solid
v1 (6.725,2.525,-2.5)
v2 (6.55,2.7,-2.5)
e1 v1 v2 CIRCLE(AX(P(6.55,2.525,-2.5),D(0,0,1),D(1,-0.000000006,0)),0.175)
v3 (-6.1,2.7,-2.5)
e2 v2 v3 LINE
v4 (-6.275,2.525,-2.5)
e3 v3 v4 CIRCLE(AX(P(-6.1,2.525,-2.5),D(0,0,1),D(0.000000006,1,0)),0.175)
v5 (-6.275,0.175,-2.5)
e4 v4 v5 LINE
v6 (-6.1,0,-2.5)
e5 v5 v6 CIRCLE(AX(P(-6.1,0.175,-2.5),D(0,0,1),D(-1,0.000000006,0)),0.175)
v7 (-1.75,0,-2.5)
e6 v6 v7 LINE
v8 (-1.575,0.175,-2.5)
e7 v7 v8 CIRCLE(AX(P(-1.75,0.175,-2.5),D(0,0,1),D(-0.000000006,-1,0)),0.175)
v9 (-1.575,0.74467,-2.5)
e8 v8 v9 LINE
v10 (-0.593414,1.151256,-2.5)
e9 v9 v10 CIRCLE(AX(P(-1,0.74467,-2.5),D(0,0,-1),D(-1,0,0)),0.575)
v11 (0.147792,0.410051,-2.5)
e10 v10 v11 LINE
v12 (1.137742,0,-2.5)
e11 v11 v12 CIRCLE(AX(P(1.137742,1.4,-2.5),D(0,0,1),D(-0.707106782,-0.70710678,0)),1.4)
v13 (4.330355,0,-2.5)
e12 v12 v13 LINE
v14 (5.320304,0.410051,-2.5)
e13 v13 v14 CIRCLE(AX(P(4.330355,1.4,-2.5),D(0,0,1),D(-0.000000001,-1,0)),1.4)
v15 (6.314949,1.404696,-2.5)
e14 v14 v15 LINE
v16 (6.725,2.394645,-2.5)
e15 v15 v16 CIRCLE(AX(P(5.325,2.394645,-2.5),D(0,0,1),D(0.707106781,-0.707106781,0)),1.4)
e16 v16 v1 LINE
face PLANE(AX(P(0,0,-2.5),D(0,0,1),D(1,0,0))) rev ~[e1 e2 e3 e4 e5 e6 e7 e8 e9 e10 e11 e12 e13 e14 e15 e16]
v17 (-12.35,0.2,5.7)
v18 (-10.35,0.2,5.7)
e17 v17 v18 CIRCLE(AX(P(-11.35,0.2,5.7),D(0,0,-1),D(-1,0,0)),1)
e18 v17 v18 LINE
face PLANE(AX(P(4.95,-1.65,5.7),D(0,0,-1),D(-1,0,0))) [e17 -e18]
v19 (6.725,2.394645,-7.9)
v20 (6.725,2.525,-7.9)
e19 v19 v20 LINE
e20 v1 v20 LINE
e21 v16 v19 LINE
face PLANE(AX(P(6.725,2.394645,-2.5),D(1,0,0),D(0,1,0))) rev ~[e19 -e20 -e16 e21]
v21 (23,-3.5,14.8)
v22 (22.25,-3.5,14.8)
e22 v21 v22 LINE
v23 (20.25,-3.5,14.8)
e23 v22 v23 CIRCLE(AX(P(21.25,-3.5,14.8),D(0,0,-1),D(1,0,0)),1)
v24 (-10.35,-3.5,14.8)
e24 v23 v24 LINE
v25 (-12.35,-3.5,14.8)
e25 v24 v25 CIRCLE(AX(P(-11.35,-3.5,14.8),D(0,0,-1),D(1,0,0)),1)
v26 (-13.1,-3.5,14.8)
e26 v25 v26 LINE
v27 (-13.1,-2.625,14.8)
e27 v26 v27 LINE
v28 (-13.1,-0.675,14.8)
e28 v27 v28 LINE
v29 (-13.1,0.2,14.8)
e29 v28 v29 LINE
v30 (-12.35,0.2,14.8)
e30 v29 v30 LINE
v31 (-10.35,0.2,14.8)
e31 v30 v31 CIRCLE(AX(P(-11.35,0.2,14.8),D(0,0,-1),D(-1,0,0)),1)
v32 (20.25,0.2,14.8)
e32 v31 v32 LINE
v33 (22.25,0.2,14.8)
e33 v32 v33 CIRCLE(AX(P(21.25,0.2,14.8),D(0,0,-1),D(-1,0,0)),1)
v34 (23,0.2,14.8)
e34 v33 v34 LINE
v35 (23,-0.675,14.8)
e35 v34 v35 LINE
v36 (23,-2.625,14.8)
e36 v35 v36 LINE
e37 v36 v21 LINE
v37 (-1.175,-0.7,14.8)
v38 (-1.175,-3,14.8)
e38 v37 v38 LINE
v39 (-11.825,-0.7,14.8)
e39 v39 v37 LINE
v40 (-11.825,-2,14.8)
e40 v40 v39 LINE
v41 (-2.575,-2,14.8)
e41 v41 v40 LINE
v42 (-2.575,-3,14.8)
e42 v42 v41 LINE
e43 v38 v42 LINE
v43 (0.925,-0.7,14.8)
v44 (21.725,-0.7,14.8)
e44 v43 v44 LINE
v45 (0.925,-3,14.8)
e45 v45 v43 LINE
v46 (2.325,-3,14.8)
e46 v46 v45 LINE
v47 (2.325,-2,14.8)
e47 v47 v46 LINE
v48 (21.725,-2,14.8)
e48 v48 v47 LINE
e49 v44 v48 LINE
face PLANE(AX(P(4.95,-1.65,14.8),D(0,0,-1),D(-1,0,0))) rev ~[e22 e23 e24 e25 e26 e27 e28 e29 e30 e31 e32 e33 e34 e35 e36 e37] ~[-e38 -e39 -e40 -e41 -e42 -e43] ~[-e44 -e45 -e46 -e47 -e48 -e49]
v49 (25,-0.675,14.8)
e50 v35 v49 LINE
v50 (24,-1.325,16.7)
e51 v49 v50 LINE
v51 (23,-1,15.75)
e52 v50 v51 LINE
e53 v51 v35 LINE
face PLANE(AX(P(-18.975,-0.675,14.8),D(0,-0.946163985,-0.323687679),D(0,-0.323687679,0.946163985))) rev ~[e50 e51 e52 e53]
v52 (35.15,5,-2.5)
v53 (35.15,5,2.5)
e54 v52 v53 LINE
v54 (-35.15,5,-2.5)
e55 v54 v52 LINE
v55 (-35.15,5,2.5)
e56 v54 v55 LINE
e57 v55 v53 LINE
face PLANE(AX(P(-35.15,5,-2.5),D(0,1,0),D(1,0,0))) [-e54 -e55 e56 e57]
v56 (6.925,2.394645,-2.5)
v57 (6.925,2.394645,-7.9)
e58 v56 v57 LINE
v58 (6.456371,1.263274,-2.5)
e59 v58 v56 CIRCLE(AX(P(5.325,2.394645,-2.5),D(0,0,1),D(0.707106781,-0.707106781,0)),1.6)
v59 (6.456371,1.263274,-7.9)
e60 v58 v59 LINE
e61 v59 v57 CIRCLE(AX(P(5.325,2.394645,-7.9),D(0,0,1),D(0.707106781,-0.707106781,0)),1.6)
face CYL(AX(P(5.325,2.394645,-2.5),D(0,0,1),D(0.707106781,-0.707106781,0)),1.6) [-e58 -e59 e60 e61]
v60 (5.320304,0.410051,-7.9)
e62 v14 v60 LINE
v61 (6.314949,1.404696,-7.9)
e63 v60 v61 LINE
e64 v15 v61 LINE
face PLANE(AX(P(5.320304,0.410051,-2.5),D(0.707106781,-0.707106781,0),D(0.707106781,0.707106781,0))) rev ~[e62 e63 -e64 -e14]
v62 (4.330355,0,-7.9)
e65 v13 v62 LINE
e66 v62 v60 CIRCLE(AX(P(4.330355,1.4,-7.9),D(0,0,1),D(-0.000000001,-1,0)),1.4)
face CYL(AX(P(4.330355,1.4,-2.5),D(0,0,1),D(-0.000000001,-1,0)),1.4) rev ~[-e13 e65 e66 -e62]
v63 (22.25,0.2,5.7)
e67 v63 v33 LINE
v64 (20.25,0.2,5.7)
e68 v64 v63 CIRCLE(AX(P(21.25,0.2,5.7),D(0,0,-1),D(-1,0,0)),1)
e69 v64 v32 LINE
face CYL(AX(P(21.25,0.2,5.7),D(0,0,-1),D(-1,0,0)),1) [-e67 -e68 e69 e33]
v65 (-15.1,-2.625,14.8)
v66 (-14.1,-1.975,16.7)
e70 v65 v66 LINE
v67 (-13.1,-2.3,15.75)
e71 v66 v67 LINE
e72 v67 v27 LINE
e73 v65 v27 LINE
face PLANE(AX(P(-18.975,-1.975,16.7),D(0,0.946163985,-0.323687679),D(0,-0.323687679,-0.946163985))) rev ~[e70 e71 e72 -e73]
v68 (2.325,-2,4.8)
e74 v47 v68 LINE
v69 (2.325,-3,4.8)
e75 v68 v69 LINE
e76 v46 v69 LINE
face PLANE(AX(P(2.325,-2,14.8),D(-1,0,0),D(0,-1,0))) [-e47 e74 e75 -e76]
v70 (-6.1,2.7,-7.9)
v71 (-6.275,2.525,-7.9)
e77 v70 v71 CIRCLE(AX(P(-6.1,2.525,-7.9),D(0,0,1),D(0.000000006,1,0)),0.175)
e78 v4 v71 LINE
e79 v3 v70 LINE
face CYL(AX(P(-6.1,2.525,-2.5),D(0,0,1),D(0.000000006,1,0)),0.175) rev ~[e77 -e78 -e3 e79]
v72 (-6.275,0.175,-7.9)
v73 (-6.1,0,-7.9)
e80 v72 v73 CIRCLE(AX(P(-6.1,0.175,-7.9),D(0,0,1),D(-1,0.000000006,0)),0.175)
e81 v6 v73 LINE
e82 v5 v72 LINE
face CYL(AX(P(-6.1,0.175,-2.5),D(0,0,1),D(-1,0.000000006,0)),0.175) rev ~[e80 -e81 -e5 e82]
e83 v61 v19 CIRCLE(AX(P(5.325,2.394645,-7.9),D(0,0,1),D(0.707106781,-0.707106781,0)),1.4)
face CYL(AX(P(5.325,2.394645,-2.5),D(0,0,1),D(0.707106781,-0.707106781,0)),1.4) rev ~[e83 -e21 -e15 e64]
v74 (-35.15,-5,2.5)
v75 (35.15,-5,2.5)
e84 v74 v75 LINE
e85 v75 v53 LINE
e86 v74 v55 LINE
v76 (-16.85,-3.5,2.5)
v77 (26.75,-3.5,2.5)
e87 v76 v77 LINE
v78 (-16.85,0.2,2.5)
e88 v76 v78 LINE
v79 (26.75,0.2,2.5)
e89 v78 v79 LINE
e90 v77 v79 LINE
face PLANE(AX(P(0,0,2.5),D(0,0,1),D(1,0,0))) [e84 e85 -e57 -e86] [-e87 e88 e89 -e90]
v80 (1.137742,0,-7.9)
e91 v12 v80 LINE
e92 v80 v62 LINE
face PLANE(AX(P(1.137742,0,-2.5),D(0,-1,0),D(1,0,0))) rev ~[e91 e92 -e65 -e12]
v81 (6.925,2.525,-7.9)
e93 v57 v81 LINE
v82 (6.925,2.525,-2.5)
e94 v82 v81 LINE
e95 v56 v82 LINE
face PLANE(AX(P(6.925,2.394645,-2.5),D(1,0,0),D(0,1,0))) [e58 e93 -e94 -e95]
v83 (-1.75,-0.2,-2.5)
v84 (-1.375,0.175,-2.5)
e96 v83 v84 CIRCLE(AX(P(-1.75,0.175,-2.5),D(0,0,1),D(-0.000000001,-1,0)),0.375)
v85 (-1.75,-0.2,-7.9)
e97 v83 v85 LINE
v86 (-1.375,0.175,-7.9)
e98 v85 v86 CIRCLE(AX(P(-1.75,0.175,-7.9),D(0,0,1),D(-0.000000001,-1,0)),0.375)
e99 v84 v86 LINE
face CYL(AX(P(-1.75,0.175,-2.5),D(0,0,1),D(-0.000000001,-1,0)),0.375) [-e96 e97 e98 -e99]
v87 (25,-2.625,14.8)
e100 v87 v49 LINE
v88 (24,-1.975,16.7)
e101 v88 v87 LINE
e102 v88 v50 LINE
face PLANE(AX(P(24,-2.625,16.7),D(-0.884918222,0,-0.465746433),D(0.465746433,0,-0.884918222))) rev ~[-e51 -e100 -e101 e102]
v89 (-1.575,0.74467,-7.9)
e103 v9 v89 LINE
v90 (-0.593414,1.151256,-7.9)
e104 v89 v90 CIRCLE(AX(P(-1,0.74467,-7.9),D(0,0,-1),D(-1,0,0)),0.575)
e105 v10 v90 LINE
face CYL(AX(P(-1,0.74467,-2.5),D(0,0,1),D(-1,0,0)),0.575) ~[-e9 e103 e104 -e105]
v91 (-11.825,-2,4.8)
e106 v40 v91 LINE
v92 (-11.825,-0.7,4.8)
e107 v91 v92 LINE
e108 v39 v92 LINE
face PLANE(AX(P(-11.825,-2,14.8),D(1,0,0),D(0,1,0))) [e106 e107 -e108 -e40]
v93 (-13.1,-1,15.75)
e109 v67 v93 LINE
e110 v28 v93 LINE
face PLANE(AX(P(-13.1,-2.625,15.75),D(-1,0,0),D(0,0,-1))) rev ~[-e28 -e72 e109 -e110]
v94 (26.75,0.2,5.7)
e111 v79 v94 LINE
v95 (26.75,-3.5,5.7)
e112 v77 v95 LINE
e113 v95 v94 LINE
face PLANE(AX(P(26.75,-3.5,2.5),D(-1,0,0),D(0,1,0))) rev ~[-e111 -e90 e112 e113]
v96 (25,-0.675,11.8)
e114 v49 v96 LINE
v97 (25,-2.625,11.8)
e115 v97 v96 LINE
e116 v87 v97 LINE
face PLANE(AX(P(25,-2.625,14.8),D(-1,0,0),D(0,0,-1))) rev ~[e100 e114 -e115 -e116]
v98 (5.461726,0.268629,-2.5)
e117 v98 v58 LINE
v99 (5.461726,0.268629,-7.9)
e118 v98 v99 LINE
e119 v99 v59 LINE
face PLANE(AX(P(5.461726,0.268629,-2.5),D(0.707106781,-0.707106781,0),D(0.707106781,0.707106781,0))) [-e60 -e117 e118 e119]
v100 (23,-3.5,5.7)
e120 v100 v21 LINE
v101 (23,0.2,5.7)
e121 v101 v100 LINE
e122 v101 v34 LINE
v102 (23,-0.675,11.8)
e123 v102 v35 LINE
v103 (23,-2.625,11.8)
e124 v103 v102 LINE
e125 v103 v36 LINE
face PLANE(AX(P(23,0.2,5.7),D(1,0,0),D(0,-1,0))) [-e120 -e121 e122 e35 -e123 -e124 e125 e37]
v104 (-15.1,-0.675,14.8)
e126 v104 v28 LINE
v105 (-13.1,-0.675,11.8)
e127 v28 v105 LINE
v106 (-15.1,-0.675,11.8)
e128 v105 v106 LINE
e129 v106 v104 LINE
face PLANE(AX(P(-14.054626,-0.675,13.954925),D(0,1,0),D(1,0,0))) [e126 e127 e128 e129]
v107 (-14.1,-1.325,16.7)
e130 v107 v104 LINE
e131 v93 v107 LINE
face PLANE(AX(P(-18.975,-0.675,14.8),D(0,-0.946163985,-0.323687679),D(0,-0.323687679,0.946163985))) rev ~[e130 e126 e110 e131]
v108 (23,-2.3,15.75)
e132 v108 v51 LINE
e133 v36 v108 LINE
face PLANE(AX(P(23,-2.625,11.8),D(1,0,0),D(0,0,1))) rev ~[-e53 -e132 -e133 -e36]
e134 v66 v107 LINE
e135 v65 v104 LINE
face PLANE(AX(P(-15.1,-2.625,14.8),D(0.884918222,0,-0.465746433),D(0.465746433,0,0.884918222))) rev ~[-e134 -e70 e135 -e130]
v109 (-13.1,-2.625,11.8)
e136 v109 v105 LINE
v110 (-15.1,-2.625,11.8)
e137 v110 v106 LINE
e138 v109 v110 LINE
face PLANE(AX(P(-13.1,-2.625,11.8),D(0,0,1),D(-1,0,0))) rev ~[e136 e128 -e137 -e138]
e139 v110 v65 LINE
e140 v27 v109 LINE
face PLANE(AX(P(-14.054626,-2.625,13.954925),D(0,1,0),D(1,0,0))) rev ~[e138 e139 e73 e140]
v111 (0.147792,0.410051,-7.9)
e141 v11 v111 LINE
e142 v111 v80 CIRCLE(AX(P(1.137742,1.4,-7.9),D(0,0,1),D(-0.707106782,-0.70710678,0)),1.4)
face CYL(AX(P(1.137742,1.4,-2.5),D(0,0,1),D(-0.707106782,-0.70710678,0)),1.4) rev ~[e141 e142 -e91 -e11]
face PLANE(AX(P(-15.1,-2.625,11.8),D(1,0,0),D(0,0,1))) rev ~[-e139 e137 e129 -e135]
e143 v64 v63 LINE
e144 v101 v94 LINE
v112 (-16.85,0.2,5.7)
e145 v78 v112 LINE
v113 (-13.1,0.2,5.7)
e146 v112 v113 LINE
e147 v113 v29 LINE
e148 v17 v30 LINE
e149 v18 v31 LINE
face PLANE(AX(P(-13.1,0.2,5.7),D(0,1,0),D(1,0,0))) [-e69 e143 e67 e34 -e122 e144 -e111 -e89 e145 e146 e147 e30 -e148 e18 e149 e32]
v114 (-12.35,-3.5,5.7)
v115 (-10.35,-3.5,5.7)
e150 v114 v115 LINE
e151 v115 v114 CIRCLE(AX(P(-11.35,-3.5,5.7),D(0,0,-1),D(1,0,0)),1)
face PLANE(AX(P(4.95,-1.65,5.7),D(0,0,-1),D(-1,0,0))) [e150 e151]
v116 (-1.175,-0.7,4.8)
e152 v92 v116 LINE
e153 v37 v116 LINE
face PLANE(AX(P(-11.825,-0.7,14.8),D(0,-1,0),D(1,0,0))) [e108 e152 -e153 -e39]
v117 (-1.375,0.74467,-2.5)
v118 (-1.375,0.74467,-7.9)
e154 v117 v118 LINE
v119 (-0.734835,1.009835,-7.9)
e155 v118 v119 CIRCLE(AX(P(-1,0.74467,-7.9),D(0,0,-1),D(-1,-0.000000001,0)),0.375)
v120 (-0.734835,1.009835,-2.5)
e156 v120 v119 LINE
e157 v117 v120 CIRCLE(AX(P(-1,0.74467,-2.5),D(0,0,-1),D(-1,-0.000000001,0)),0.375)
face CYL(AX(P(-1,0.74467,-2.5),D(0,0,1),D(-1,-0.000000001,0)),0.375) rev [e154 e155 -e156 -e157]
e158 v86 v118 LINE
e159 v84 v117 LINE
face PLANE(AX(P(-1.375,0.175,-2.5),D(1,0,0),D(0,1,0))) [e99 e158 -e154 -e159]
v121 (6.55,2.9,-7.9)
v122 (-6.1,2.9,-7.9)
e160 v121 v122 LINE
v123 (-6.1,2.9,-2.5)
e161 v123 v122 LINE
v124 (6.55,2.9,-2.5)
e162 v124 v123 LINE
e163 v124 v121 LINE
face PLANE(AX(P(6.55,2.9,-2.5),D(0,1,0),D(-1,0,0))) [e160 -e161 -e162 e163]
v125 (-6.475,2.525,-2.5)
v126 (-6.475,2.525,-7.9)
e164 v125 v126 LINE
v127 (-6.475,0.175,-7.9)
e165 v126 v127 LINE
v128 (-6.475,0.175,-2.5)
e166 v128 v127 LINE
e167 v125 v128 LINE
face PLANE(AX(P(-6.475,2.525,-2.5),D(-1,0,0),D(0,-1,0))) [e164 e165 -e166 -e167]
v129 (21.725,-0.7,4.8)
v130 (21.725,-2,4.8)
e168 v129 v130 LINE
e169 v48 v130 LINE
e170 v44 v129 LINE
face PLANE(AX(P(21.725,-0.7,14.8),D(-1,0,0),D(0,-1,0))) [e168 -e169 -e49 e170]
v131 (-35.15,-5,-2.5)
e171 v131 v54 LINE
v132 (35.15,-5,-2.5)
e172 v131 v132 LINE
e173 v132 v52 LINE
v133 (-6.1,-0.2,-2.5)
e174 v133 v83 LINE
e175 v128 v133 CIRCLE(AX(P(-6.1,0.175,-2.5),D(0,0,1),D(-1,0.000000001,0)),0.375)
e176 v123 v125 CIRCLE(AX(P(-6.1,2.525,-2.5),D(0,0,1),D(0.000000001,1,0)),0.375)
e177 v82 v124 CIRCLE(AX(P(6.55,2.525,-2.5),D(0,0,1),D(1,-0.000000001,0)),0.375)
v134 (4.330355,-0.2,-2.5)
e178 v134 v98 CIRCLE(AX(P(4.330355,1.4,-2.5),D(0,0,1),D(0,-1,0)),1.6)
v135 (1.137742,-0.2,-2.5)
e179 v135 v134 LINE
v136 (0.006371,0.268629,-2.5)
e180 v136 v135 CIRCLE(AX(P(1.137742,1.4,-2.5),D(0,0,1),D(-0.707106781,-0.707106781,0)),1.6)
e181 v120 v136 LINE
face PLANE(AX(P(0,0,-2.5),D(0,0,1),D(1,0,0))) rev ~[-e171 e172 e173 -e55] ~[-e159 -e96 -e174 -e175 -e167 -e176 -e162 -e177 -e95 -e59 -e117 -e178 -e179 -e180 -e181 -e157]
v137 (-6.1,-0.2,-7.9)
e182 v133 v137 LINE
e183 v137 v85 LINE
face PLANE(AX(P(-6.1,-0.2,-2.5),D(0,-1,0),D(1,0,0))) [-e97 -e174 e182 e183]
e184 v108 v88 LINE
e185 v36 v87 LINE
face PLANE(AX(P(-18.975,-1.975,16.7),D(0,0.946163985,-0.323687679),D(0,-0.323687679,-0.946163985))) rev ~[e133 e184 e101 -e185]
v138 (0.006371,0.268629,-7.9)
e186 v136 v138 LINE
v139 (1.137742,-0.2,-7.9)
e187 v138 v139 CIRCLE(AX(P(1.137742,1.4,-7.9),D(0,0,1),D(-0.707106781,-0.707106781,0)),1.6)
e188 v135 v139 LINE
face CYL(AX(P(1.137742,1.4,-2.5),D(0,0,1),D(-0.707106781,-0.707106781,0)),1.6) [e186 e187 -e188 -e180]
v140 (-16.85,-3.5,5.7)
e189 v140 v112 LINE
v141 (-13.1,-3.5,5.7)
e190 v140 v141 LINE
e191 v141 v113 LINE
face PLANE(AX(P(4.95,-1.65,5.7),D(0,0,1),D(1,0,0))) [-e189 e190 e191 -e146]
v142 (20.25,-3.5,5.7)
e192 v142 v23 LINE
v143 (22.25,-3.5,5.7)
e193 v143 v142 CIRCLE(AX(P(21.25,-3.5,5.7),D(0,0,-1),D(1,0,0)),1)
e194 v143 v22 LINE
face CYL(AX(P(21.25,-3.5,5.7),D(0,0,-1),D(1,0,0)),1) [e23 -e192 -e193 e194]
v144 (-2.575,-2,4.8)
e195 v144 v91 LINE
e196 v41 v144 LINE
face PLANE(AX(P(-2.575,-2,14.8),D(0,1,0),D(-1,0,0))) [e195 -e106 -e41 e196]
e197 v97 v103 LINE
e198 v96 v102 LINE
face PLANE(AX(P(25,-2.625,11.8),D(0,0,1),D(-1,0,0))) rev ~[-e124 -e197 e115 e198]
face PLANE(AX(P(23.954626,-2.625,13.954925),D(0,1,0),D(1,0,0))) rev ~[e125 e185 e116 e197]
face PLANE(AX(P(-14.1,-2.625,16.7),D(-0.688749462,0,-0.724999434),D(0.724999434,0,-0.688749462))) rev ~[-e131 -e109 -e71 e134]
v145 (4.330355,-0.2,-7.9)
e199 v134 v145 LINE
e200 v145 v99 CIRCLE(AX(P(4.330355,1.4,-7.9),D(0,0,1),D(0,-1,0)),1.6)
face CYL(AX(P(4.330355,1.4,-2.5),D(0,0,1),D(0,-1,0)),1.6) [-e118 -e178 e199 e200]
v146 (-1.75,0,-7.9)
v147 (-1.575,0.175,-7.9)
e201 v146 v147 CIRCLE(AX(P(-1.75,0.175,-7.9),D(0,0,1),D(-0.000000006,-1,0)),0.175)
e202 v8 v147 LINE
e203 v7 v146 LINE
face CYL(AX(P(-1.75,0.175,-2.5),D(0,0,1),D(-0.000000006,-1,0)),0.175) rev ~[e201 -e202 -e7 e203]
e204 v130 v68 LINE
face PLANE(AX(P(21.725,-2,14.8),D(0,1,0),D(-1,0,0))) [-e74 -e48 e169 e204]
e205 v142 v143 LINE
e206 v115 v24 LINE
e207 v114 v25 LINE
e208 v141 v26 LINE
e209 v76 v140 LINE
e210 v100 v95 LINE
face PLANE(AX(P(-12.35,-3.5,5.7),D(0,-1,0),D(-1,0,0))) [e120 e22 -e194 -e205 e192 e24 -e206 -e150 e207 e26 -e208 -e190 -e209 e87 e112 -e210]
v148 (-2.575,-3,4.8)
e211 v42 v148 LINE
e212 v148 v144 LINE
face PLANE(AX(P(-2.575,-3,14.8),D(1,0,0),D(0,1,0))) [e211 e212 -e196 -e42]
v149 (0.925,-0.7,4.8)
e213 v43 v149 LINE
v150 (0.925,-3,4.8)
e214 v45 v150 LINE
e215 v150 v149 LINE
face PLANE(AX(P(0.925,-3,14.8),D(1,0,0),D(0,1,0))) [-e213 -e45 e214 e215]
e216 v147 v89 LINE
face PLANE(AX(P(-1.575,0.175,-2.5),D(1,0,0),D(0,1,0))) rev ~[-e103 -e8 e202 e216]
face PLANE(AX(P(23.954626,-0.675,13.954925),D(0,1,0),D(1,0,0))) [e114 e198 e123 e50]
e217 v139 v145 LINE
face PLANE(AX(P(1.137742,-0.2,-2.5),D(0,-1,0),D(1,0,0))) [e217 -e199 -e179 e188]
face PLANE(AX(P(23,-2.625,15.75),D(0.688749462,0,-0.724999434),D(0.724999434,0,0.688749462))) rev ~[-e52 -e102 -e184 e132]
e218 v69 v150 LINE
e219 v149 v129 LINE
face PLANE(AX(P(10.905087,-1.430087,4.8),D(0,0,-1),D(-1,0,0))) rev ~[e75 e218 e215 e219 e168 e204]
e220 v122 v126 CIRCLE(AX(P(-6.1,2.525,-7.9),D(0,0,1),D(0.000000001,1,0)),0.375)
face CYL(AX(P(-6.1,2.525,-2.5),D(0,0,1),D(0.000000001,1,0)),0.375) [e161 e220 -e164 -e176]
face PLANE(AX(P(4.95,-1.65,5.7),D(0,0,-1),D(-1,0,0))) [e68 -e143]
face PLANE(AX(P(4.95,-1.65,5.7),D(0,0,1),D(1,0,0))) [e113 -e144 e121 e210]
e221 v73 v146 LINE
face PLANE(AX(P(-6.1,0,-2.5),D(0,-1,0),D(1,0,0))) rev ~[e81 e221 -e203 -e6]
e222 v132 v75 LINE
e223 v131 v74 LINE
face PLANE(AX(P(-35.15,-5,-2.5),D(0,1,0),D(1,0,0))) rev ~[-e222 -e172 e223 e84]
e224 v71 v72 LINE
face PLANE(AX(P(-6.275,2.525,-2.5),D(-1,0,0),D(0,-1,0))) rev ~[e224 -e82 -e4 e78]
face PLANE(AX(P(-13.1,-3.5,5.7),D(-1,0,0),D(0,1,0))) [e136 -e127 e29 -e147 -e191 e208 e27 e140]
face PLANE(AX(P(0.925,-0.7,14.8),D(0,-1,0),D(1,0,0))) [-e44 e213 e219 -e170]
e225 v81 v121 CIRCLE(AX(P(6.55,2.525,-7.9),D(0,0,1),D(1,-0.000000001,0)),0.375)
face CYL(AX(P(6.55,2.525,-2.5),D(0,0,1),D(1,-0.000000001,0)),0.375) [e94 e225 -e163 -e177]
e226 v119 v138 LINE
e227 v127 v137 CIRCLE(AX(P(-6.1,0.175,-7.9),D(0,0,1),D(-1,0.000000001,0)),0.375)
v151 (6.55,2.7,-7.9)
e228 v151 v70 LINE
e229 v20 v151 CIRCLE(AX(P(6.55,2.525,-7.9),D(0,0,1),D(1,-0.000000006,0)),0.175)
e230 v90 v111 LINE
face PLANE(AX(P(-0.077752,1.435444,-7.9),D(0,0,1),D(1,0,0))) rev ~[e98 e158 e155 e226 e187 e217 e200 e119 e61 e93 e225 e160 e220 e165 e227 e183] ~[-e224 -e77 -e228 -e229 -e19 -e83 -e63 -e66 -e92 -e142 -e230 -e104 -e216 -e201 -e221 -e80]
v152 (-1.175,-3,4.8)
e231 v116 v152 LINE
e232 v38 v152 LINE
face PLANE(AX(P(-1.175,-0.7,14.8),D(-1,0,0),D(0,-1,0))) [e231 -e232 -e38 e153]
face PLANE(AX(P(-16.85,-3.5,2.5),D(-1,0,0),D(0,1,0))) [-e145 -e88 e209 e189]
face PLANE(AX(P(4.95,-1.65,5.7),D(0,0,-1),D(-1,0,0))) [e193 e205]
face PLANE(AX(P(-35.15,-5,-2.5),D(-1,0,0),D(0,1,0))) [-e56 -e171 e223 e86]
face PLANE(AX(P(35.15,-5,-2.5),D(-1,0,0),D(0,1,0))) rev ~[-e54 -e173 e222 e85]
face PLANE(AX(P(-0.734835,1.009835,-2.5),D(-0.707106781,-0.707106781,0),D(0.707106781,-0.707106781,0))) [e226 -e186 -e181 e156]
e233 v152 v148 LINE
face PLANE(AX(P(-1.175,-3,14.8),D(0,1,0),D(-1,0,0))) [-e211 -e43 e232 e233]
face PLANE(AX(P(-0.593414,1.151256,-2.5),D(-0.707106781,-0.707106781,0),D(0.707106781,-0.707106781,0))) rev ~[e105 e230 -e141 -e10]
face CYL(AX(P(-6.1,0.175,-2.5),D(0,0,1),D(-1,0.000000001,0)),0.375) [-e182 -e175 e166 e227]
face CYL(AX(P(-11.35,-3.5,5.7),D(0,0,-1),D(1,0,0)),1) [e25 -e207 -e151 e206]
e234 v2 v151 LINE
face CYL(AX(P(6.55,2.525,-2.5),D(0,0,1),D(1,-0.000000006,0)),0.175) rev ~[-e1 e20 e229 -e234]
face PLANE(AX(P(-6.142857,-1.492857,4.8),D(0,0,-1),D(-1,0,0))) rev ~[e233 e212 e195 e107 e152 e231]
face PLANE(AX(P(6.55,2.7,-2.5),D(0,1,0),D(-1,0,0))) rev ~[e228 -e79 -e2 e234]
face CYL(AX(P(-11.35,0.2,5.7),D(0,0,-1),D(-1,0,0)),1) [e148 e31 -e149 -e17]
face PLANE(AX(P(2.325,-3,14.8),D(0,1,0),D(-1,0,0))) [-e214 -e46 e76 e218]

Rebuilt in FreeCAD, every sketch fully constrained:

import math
import FreeCAD as App
import Part
import Sketcher

V = App.Vector

doc = App.newDocument("Part")
body = doc.addObject("PartDesign::Body", "Body")

sketch1 = body.newObject("Sketcher::SketchObject", "Sketch")
sketch1.AttachmentSupport = (doc.getObject("XY_Plane"), [""])
sketch1.MapMode = "FlatFace"
sketch1.addGeometry(Part.LineSegment(V(-35, 5, 0), V(-35, -5, 0)), False)
sketch1.addGeometry(Part.LineSegment(V(-35, -5, 0), V(35, -5, 0)), False)
sketch1.addGeometry(Part.LineSegment(V(35, -5, 0), V(35, 5, 0)), False)
sketch1.addGeometry(Part.LineSegment(V(35, 5, 0), V(-35, 5, 0)), False)
sketch1.addConstraint(Sketcher.Constraint("Coincident", 0, 2, 1, 1))
sketch1.addConstraint(Sketcher.Constraint("Coincident", 1, 2, 2, 1))
sketch1.addConstraint(Sketcher.Constraint("Coincident", 2, 2, 3, 1))
sketch1.addConstraint(Sketcher.Constraint("Coincident", 3, 2, 0, 1))
sketch1.addConstraint(Sketcher.Constraint("Vertical", 0))
sketch1.addConstraint(Sketcher.Constraint("Horizontal", 1))
sketch1.addConstraint(Sketcher.Constraint("Vertical", 2))
sketch1.addConstraint(Sketcher.Constraint("Horizontal", 3))
sketch1.addConstraint(Sketcher.Constraint("Symmetric", 0, 2, 2, 2, -1, 1))
sketch1.addConstraint(Sketcher.Constraint("DistanceY", 0, 2, 0, 1, 10.0))
sketch1.addConstraint(Sketcher.Constraint("DistanceX", 1, 1, 1, 2, 70.3))
pad1 = body.newObject("PartDesign::Pad", "Pad")
pad1.Profile = sketch1
pad1.Type = "TwoLengths"
pad1.Length = 2.5
pad1.Length2 = 2.5

sketch2 = body.newObject("Sketcher::SketchObject", "Sketch001")
sketch2.AttachmentSupport = (doc.getObject("XY_Plane"), [""])
sketch2.MapMode = "FlatFace"
sketch2.AttachmentOffset = App.Placement(V(0, 0, 2.5), App.Rotation())
sketch2.addGeometry(Part.LineSegment(V(-16.9, 0.2, 0), V(-16.9, -3.5, 0)), False)
sketch2.addGeometry(Part.LineSegment(V(-16.9, -3.5, 0), V(26.8, -3.5, 0)), False)
sketch2.addGeometry(Part.LineSegment(V(26.8, -3.5, 0), V(26.8, 0.2, 0)), False)
sketch2.addGeometry(Part.LineSegment(V(26.8, 0.2, 0), V(-16.9, 0.2, 0)), False)
sketch2.addConstraint(Sketcher.Constraint("Coincident", 0, 2, 1, 1))
sketch2.addConstraint(Sketcher.Constraint("Coincident", 1, 2, 2, 1))
sketch2.addConstraint(Sketcher.Constraint("Coincident", 2, 2, 3, 1))
sketch2.addConstraint(Sketcher.Constraint("Coincident", 3, 2, 0, 1))
sketch2.addConstraint(Sketcher.Constraint("Vertical", 0))
sketch2.addConstraint(Sketcher.Constraint("Horizontal", 1))
sketch2.addConstraint(Sketcher.Constraint("Vertical", 2))
sketch2.addConstraint(Sketcher.Constraint("Horizontal", 3))
sketch2.addConstraint(Sketcher.Constraint("DistanceX", 1, 1, 1, 2, 43.6))
sketch2.addConstraint(Sketcher.Constraint("DistanceY", 0, 2, 0, 1, 3.7))
sketch2.addConstraint(Sketcher.Constraint("DistanceY", 0, 2, -1, 1, 3.5))
sketch2.addConstraint(Sketcher.Constraint("DistanceX", 0, 2, -1, 1, 16.85))
pad2 = body.newObject("PartDesign::Pad", "Pad001")
pad2.Profile = sketch2
pad2.Length = 3.2

sketch3 = body.newObject("Sketcher::SketchObject", "Sketch002")
sketch3.AttachmentSupport = (doc.getObject("XY_Plane"), [""])
sketch3.MapMode = "FlatFace"
sketch3.AttachmentOffset = App.Placement(V(0, 0, 5.7), App.Rotation())
sketch3.addGeometry(Part.LineSegment(V(-12.3, 0.2, 0), V(-13.1, 0.2, 0)), False)
sketch3.addGeometry(Part.LineSegment(V(-13.1, 0.2, 0), V(-13.1, -3.5, 0)), False)
sketch3.addGeometry(Part.LineSegment(V(-13.1, -3.5, 0), V(-12.3, -3.5, 0)), False)
sketch3.addGeometry(Part.ArcOfCircle(Part.Circle(V(-11.3, -3.5, 0), V(0, 0, 1), 1), math.radians(180), math.radians(360)), False)
sketch3.addGeometry(Part.LineSegment(V(-10.3, -3.5, 0), V(20.2, -3.5, 0)), False)
sketch3.addGeometry(Part.ArcOfCircle(Part.Circle(V(21.2, -3.5, 0), V(0, 0, 1), 1), math.radians(180), math.radians(360)), False)
sketch3.addGeometry(Part.LineSegment(V(22.2, -3.5, 0), V(23, -3.5, 0)), False)
sketch3.addGeometry(Part.LineSegment(V(23, -3.5, 0), V(23, 0.2, 0)), False)
sketch3.addGeometry(Part.LineSegment(V(23, 0.2, 0), V(22.2, 0.2, 0)), False)
sketch3.addGeometry(Part.ArcOfCircle(Part.Circle(V(21.2, 0.2, 0), V(0, 0, 1), 1), math.radians(0), math.radians(180)), False)
sketch3.addGeometry(Part.LineSegment(V(20.2, 0.2, 0), V(-10.3, 0.2, 0)), False)
sketch3.addGeometry(Part.ArcOfCircle(Part.Circle(V(-11.3, 0.2, 0), V(0, 0, 1), 1), math.radians(0), math.radians(180)), False)
sketch3.addConstraint(Sketcher.Constraint("Coincident", 0, 2, 1, 1))
sketch3.addConstraint(Sketcher.Constraint("Coincident", 1, 2, 2, 1))
sketch3.addConstraint(Sketcher.Constraint("Coincident", 2, 2, 3, 1))
sketch3.addConstraint(Sketcher.Constraint("Coincident", 3, 2, 4, 1))
sketch3.addConstraint(Sketcher.Constraint("Coincident", 4, 2, 5, 1))
sketch3.addConstraint(Sketcher.Constraint("Coincident", 5, 2, 6, 1))
sketch3.addConstraint(Sketcher.Constraint("Coincident", 6, 2, 7, 1))
sketch3.addConstraint(Sketcher.Constraint("Coincident", 7, 2, 8, 1))
sketch3.addConstraint(Sketcher.Constraint("Coincident", 8, 2, 9, 1))
sketch3.addConstraint(Sketcher.Constraint("Coincident", 9, 2, 10, 1))
sketch3.addConstraint(Sketcher.Constraint("Coincident", 10, 2, 11, 1))
sketch3.addConstraint(Sketcher.Constraint("Coincident", 11, 2, 0, 1))
sketch3.addConstraint(Sketcher.Constraint("Horizontal", 0))
sketch3.addConstraint(Sketcher.Constraint("Vertical", 1))
sketch3.addConstraint(Sketcher.Constraint("Horizontal", 2))
sketch3.addConstraint(Sketcher.Constraint("Horizontal", 4))
sketch3.addConstraint(Sketcher.Constraint("Horizontal", 6))
sketch3.addConstraint(Sketcher.Constraint("Vertical", 7))
sketch3.addConstraint(Sketcher.Constraint("Horizontal", 8))
sketch3.addConstraint(Sketcher.Constraint("Horizontal", 10))
sketch3.addConstraint(Sketcher.Constraint("Equal", 3, 5))
sketch3.addConstraint(Sketcher.Constraint("Equal", 5, 9))
sketch3.addConstraint(Sketcher.Constraint("Equal", 9, 11))
sketch3.addConstraint(Sketcher.Constraint("Horizontal", 3, 3, 5, 3))
sketch3.addConstraint(Sketcher.Constraint("Horizontal", 9, 3, 11, 3))
sketch3.addConstraint(Sketcher.Constraint("Horizontal", 11, 3, 0, 2))
sketch3.addConstraint(Sketcher.Constraint("Horizontal", 5, 3, 1, 2))
sketch3.addConstraint(Sketcher.Constraint("Horizontal", 2, 2, 3, 2))
sketch3.addConstraint(Sketcher.Constraint("Horizontal", 4, 2, 5, 2))
sketch3.addConstraint(Sketcher.Constraint("Horizontal", 0, 2, 7, 2))
sketch3.addConstraint(Sketcher.Constraint("Horizontal", 8, 2, 9, 2))
sketch3.addConstraint(Sketcher.Constraint("Vertical", 5, 3, 9, 3))
sketch3.addConstraint(Sketcher.Constraint("Vertical", 3, 3, 11, 3))
sketch3.addConstraint(Sketcher.Constraint("Equal", 2, 6))
sketch3.addConstraint(Sketcher.Constraint("Radius", 3, 1.0))
sketch3.addConstraint(Sketcher.Constraint("DistanceX", 4, 1, 4, 2, 30.6))
sketch3.addConstraint(Sketcher.Constraint("DistanceY", 1, 2, 1, 1, 3.7))
sketch3.addConstraint(Sketcher.Constraint("DistanceX", -1, 1, 6, 2, 23.0))
sketch3.addConstraint(Sketcher.Constraint("DistanceX", 0, 2, 0, 1, 0.75))
sketch3.addConstraint(Sketcher.Constraint("DistanceY", 3, 3, -1, 1, 3.5))
pad3 = body.newObject("PartDesign::Pad", "Pad002")
pad3.Profile = sketch3
pad3.Length = 9.1

sketch4 = body.newObject("Sketcher::SketchObject", "Sketch003")
sketch4.AttachmentSupport = (doc.getObject("XY_Plane"), [""])
sketch4.MapMode = "FlatFace"
sketch4.AttachmentOffset = App.Placement(V(0, 0, 14.8), App.Rotation())
sketch4.addGeometry(Part.LineSegment(V(-1.2, -0.7, 0), V(-11.8, -0.7, 0)), False)
sketch4.addGeometry(Part.LineSegment(V(-11.8, -0.7, 0), V(-11.8, -2, 0)), False)
sketch4.addGeometry(Part.LineSegment(V(-11.8, -2, 0), V(-2.6, -2, 0)), False)
sketch4.addGeometry(Part.LineSegment(V(-2.6, -2, 0), V(-2.6, -3, 0)), False)
sketch4.addGeometry(Part.LineSegment(V(-2.6, -3, 0), V(-1.2, -3, 0)), False)
sketch4.addGeometry(Part.LineSegment(V(-1.2, -3, 0), V(-1.2, -0.7, 0)), False)
sketch4.addGeometry(Part.LineSegment(V(21.7, -0.7, 0), V(0.9, -0.7, 0)), False)
sketch4.addGeometry(Part.LineSegment(V(0.9, -0.7, 0), V(0.9, -3, 0)), False)
sketch4.addGeometry(Part.LineSegment(V(0.9, -3, 0), V(2.3, -3, 0)), False)
sketch4.addGeometry(Part.LineSegment(V(2.3, -3, 0), V(2.3, -2, 0)), False)
sketch4.addGeometry(Part.LineSegment(V(2.3, -2, 0), V(21.7, -2, 0)), False)
sketch4.addGeometry(Part.LineSegment(V(21.7, -2, 0), V(21.7, -0.7, 0)), False)
sketch4.addConstraint(Sketcher.Constraint("Coincident", 0, 2, 1, 1))
sketch4.addConstraint(Sketcher.Constraint("Coincident", 1, 2, 2, 1))
sketch4.addConstraint(Sketcher.Constraint("Coincident", 2, 2, 3, 1))
sketch4.addConstraint(Sketcher.Constraint("Coincident", 3, 2, 4, 1))
sketch4.addConstraint(Sketcher.Constraint("Coincident", 4, 2, 5, 1))
sketch4.addConstraint(Sketcher.Constraint("Coincident", 5, 2, 0, 1))
sketch4.addConstraint(Sketcher.Constraint("Coincident", 6, 2, 7, 1))
sketch4.addConstraint(Sketcher.Constraint("Coincident", 7, 2, 8, 1))
sketch4.addConstraint(Sketcher.Constraint("Coincident", 8, 2, 9, 1))
sketch4.addConstraint(Sketcher.Constraint("Coincident", 9, 2, 10, 1))
sketch4.addConstraint(Sketcher.Constraint("Coincident", 10, 2, 11, 1))
sketch4.addConstraint(Sketcher.Constraint("Coincident", 11, 2, 6, 1))
sketch4.addConstraint(Sketcher.Constraint("Horizontal", 0))
sketch4.addConstraint(Sketcher.Constraint("Vertical", 1))
sketch4.addConstraint(Sketcher.Constraint("Horizontal", 2))
sketch4.addConstraint(Sketcher.Constraint("Vertical", 3))
sketch4.addConstraint(Sketcher.Constraint("Horizontal", 4))
sketch4.addConstraint(Sketcher.Constraint("Vertical", 5))
sketch4.addConstraint(Sketcher.Constraint("Horizontal", 6))
sketch4.addConstraint(Sketcher.Constraint("Vertical", 7))
sketch4.addConstraint(Sketcher.Constraint("Horizontal", 8))
sketch4.addConstraint(Sketcher.Constraint("Vertical", 9))
sketch4.addConstraint(Sketcher.Constraint("Horizontal", 10))
sketch4.addConstraint(Sketcher.Constraint("Vertical", 11))
sketch4.addConstraint(Sketcher.Constraint("Horizontal", 5, 2, 6, 2))
sketch4.addConstraint(Sketcher.Constraint("Horizontal", 4, 2, 7, 2))
sketch4.addConstraint(Sketcher.Constraint("Horizontal", 2, 2, 9, 2))
sketch4.addConstraint(Sketcher.Constraint("Equal", 4, 8))
sketch4.addConstraint(Sketcher.Constraint("DistanceY", 3, 2, 3, 1, 1.0))
sketch4.addConstraint(Sketcher.Constraint("DistanceX", 4, 1, 4, 2, 1.4))
sketch4.addConstraint(Sketcher.Constraint("DistanceX", 6, 2, 6, 1, 20.8))
sketch4.addConstraint(Sketcher.Constraint("DistanceY", 1, 2, 1, 1, 1.3))
sketch4.addConstraint(Sketcher.Constraint("DistanceY", 1, 2, -1, 1, 2.0))
sketch4.addConstraint(Sketcher.Constraint("DistanceX", 0, 2, 0, 1, 10.65))
sketch4.addConstraint(Sketcher.Constraint("DistanceX", 5, 2, 6, 2, 2.1))
sketch4.addConstraint(Sketcher.Constraint("DistanceX", 0, 2, -1, 1, 11.825))
pocket1 = body.newObject("PartDesign::Pocket", "Pocket")
pocket1.Profile = sketch4
pocket1.Length = 10

sketch5 = body.newObject("Sketcher::SketchObject", "Sketch004")
sketch5.AttachmentSupport = (doc.getObject("XZ_Plane"), [""])
sketch5.MapMode = "FlatFace"
sketch5.AttachmentOffset = App.Placement(V(0, 0, 1.65), App.Rotation())
sketch5.addGeometry(Part.LineSegment(V(-13.1, 11.8, 0), V(-15.1, 11.8, 0)), False)
sketch5.addGeometry(Part.LineSegment(V(-15.1, 11.8, 0), V(-15.1, 14.8, 0)), False)
sketch5.addGeometry(Part.LineSegment(V(-15.1, 14.8, 0), V(-14.1, 16.7, 0)), False)
sketch5.addGeometry(Part.LineSegment(V(-14.1, 16.7, 0), V(-13.1, 15.8, 0)), False)
sketch5.addGeometry(Part.LineSegment(V(-13.1, 15.8, 0), V(-13.1, 11.8, 0)), False)
sketch5.addGeometry(Part.LineSegment(V(24, 16.7, 0), V(25, 14.8, 0)), False)
sketch5.addGeometry(Part.LineSegment(V(25, 14.8, 0), V(25, 11.8, 0)), False)
sketch5.addGeometry(Part.LineSegment(V(25, 11.8, 0), V(23, 11.8, 0)), False)
sketch5.addGeometry(Part.LineSegment(V(23, 11.8, 0), V(23, 15.8, 0)), False)
sketch5.addGeometry(Part.LineSegment(V(23, 15.8, 0), V(24, 16.7, 0)), False)
sketch5.addConstraint(Sketcher.Constraint("Coincident", 0, 2, 1, 1))
sketch5.addConstraint(Sketcher.Constraint("Coincident", 1, 2, 2, 1))
sketch5.addConstraint(Sketcher.Constraint("Coincident", 2, 2, 3, 1))
sketch5.addConstraint(Sketcher.Constraint("Coincident", 3, 2, 4, 1))
sketch5.addConstraint(Sketcher.Constraint("Coincident", 4, 2, 0, 1))
sketch5.addConstraint(Sketcher.Constraint("Coincident", 5, 2, 6, 1))
sketch5.addConstraint(Sketcher.Constraint("Coincident", 6, 2, 7, 1))
sketch5.addConstraint(Sketcher.Constraint("Coincident", 7, 2, 8, 1))
sketch5.addConstraint(Sketcher.Constraint("Coincident", 8, 2, 9, 1))
sketch5.addConstraint(Sketcher.Constraint("Coincident", 9, 2, 5, 1))
sketch5.addConstraint(Sketcher.Constraint("Horizontal", 0))
sketch5.addConstraint(Sketcher.Constraint("Vertical", 1))
sketch5.addConstraint(Sketcher.Constraint("Vertical", 4))
sketch5.addConstraint(Sketcher.Constraint("Vertical", 6))
sketch5.addConstraint(Sketcher.Constraint("Horizontal", 7))
sketch5.addConstraint(Sketcher.Constraint("Vertical", 8))
sketch5.addConstraint(Sketcher.Constraint("Horizontal", 1, 2, 5, 2))
sketch5.addConstraint(Sketcher.Constraint("Horizontal", 4, 2, 6, 2))
sketch5.addConstraint(Sketcher.Constraint("Horizontal", 3, 2, 8, 2))
sketch5.addConstraint(Sketcher.Constraint("Horizontal", 2, 2, 9, 2))
sketch5.addConstraint(Sketcher.Constraint("Equal", 0, 7))
sketch5.addConstraint(Sketcher.Constraint("Equal", 2, 5))
sketch5.addConstraint(Sketcher.Constraint("DistanceX", 0, 2, 0, 1, 2.0))
sketch5.addConstraint(Sketcher.Constraint("DistanceY", 1, 1, 1, 2, 3.0))
sketch5.addConstraint(Sketcher.Constraint("DistanceX", -1, 1, 5, 2, 25.0))
sketch5.addConstraint(Sketcher.Constraint("DistanceX", -1, 1, 9, 2, 24.0))
sketch5.addConstraint(Sketcher.Constraint("DistanceY", 4, 2, 4, 1, 3.95))
sketch5.addConstraint(Sketcher.Constraint("DistanceX", 0, 2, -1, 1, 15.1))
sketch5.addConstraint(Sketcher.Constraint("DistanceY", -1, 1, 0, 2, 11.8))
sketch5.addConstraint(Sketcher.Constraint("DistanceY", -1, 1, 2, 2, 16.7))
pad4 = body.newObject("PartDesign::Pad", "Pad003")
pad4.Profile = sketch5
pad4.Type = "TwoLengths"
pad4.Length = 0.975
pad4.Length2 = 0.975
pad4.Reversed = True

sketch6 = body.newObject("Sketcher::SketchObject", "Sketch005")
sketch6.AttachmentSupport = (doc.getObject("YZ_Plane"), [""])
sketch6.MapMode = "FlatFace"
sketch6.addGeometry(Part.LineSegment(V(-1.3, 16.7, 0), V(-0.7, 14.8, 0)), False)
sketch6.addGeometry(Part.LineSegment(V(-0.7, 14.8, 0), V(-0.7, 16.7, 0)), False)
sketch6.addGeometry(Part.LineSegment(V(-0.7, 16.7, 0), V(-1.3, 16.7, 0)), False)
sketch6.addGeometry(Part.LineSegment(V(-2.6, 16.7, 0), V(-2.6, 14.8, 0)), False)
sketch6.addGeometry(Part.LineSegment(V(-2.6, 14.8, 0), V(-2, 16.7, 0)), False)
sketch6.addGeometry(Part.LineSegment(V(-2, 16.7, 0), V(-2.6, 16.7, 0)), False)
sketch6.addConstraint(Sketcher.Constraint("Coincident", 0, 2, 1, 1))
sketch6.addConstraint(Sketcher.Constraint("Coincident", 1, 2, 2, 1))
sketch6.addConstraint(Sketcher.Constraint("Coincident", 2, 2, 0, 1))
sketch6.addConstraint(Sketcher.Constraint("Coincident", 3, 2, 4, 1))
sketch6.addConstraint(Sketcher.Constraint("Coincident", 4, 2, 5, 1))
sketch6.addConstraint(Sketcher.Constraint("Coincident", 5, 2, 3, 1))
sketch6.addConstraint(Sketcher.Constraint("Vertical", 1))
sketch6.addConstraint(Sketcher.Constraint("Horizontal", 2))
sketch6.addConstraint(Sketcher.Constraint("Vertical", 3))
sketch6.addConstraint(Sketcher.Constraint("Horizontal", 5))
sketch6.addConstraint(Sketcher.Constraint("Horizontal", 0, 2, 3, 2))
sketch6.addConstraint(Sketcher.Constraint("Horizontal", 2, 2, 4, 2))
sketch6.addConstraint(Sketcher.Constraint("Equal", 2, 5))
sketch6.addConstraint(Sketcher.Constraint("DistanceY", 1, 1, 1, 2, 1.9))
sketch6.addConstraint(Sketcher.Constraint("DistanceX", 2, 2, 2, 1, 0.65))
sketch6.addConstraint(Sketcher.Constraint("DistanceY", -1, 1, 0, 2, 14.8))
sketch6.addConstraint(Sketcher.Constraint("DistanceX", 3, 2, 2, 2, 1.3))
sketch6.addConstraint(Sketcher.Constraint("DistanceX", 0, 2, -1, 1, 0.675))
pocket2 = body.newObject("PartDesign::Pocket", "Pocket001")
pocket2.Profile = sketch6
pocket2.Type = "ThroughAll"
pocket2.Midplane = True

sketch7 = body.newObject("Sketcher::SketchObject", "Sketch006")
sketch7.AttachmentSupport = (doc.getObject("XY_Plane"), [""])
sketch7.MapMode = "FlatFace"
sketch7.AttachmentOffset = App.Placement(V(0, 0, -2.5), App.Rotation())
sketch7.addGeometry(Part.LineSegment(V(-6.1, 2.9, 0), V(6.55, 2.9, 0)), False)
sketch7.addGeometry(Part.ArcOfCircle(Part.Circle(V(6.55, 2.52, 0), V(0, 0, 1), 0.38), math.radians(0), math.radians(90)), False)
sketch7.addGeometry(Part.LineSegment(V(6.92, 2.52, 0), V(6.92, 2.39, 0)), False)
sketch7.addGeometry(Part.ArcOfCircle(Part.Circle(V(5.33, 2.39, 0), V(0, 0, 1), 1.6), math.radians(-45), math.radians(0)), False)
sketch7.addGeometry(Part.LineSegment(V(6.46, 1.26, 0), V(5.46, 0.27, 0)), False)
sketch7.addGeometry(Part.ArcOfCircle(Part.Circle(V(4.33, 1.4, 0), V(0, 0, 1), 1.6), math.radians(-90), math.radians(-45)), False)
sketch7.addGeometry(Part.LineSegment(V(4.33, -0.2, 0), V(1.14, -0.2, 0)), False)
sketch7.addGeometry(Part.ArcOfCircle(Part.Circle(V(1.14, 1.4, 0), V(0, 0, 1), 1.6), math.radians(-135), math.radians(-90)), False)
sketch7.addGeometry(Part.LineSegment(V(0.01, 0.27, 0), V(-0.73, 1.01, 0)), False)
sketch7.addGeometry(Part.ArcOfCircle(Part.Circle(V(-1, 0.74, 0), V(0, 0, 1), 0.38), math.radians(45), math.radians(180)), False)
sketch7.addGeometry(Part.LineSegment(V(-1.38, 0.74, 0), V(-1.38, 0.17, 0)), False)
sketch7.addGeometry(Part.ArcOfCircle(Part.Circle(V(-1.75, 0.17, 0), V(0, 0, 1), 0.38), math.radians(-90), math.radians(0)), False)
sketch7.addGeometry(Part.LineSegment(V(-1.75, -0.2, 0), V(-6.1, -0.2, 0)), False)
sketch7.addGeometry(Part.ArcOfCircle(Part.Circle(V(-6.1, 0.17, 0), V(0, 0, 1), 0.38), math.radians(180), math.radians(270)), False)
sketch7.addGeometry(Part.LineSegment(V(-6.47, 0.17, 0), V(-6.47, 2.52, 0)), False)
sketch7.addGeometry(Part.ArcOfCircle(Part.Circle(V(-6.1, 2.52, 0), V(0, 0, 1), 0.38), math.radians(90), math.radians(180)), False)
sketch7.addGeometry(Part.LineSegment(V(5.32, 0.41, 0), V(6.31, 1.4, 0)), False)
sketch7.addGeometry(Part.ArcOfCircle(Part.Circle(V(5.33, 2.39, 0), V(0, 0, 1), 1.4), math.radians(-45), math.radians(0)), False)
sketch7.addGeometry(Part.LineSegment(V(6.72, 2.39, 0), V(6.72, 2.52, 0)), False)
sketch7.addGeometry(Part.ArcOfCircle(Part.Circle(V(6.55, 2.53, 0), V(0, 0, 1), 0.17), math.radians(0), math.radians(90)), False)
sketch7.addGeometry(Part.LineSegment(V(6.55, 2.7, 0), V(-6.1, 2.7, 0)), False)
sketch7.addGeometry(Part.ArcOfCircle(Part.Circle(V(-6.1, 2.53, 0), V(0, 0, 1), 0.17), math.radians(90), math.radians(180)), False)
sketch7.addGeometry(Part.LineSegment(V(-6.28, 2.52, 0), V(-6.28, 0.17, 0)), False)
sketch7.addGeometry(Part.ArcOfCircle(Part.Circle(V(-6.1, 0.17, 0), V(0, 0, 1), 0.17), math.radians(180), math.radians(270)), False)
sketch7.addGeometry(Part.LineSegment(V(-6.1, 0, 0), V(-1.75, 0, 0)), False)
sketch7.addGeometry(Part.ArcOfCircle(Part.Circle(V(-1.75, 0.17, 0), V(0, 0, 1), 0.17), math.radians(-90), math.radians(0)), False)
sketch7.addGeometry(Part.LineSegment(V(-1.57, 0.17, 0), V(-1.57, 0.74, 0)), False)
sketch7.addGeometry(Part.ArcOfCircle(Part.Circle(V(-1, 0.74, 0), V(0, 0, 1), 0.57), math.radians(45), math.radians(180)), False)
sketch7.addGeometry(Part.LineSegment(V(-0.59, 1.15, 0), V(0.15, 0.41, 0)), False)
sketch7.addGeometry(Part.ArcOfCircle(Part.Circle(V(1.14, 1.4, 0), V(0, 0, 1), 1.4), math.radians(-135), math.radians(-90)), False)
sketch7.addGeometry(Part.LineSegment(V(1.14, 0, 0), V(4.33, 0, 0)), False)
sketch7.addGeometry(Part.ArcOfCircle(Part.Circle(V(4.33, 1.4, 0), V(0, 0, 1), 1.4), math.radians(-90), math.radians(-45)), False)
sketch7.addConstraint(Sketcher.Constraint("Tangent", 0, 2, 1, 2))
sketch7.addConstraint(Sketcher.Constraint("Tangent", 1, 1, 2, 1))
sketch7.addConstraint(Sketcher.Constraint("Tangent", 2, 2, 3, 2))
sketch7.addConstraint(Sketcher.Constraint("Tangent", 3, 1, 4, 1))
sketch7.addConstraint(Sketcher.Constraint("Tangent", 4, 2, 5, 2))
sketch7.addConstraint(Sketcher.Constraint("Tangent", 5, 1, 6, 1))
sketch7.addConstraint(Sketcher.Constraint("Tangent", 6, 2, 7, 2))
sketch7.addConstraint(Sketcher.Constraint("Tangent", 7, 1, 8, 1))
sketch7.addConstraint(Sketcher.Constraint("Tangent", 8, 2, 9, 1))
sketch7.addConstraint(Sketcher.Constraint("Tangent", 9, 2, 10, 1))
sketch7.addConstraint(Sketcher.Constraint("Tangent", 10, 2, 11, 2))
sketch7.addConstraint(Sketcher.Constraint("Tangent", 11, 1, 12, 1))
sketch7.addConstraint(Sketcher.Constraint("Tangent", 12, 2, 13, 2))
sketch7.addConstraint(Sketcher.Constraint("Tangent", 13, 1, 14, 1))
sketch7.addConstraint(Sketcher.Constraint("Tangent", 14, 2, 15, 2))
sketch7.addConstraint(Sketcher.Constraint("Tangent", 15, 1, 0, 1))
sketch7.addConstraint(Sketcher.Constraint("Tangent", 16, 2, 17, 1))
sketch7.addConstraint(Sketcher.Constraint("Tangent", 17, 2, 18, 1))
sketch7.addConstraint(Sketcher.Constraint("Tangent", 18, 2, 19, 1))
sketch7.addConstraint(Sketcher.Constraint("Tangent", 19, 2, 20, 1))
sketch7.addConstraint(Sketcher.Constraint("Tangent", 20, 2, 21, 1))
sketch7.addConstraint(Sketcher.Constraint("Tangent", 21, 2, 22, 1))
sketch7.addConstraint(Sketcher.Constraint("Tangent", 22, 2, 23, 1))
sketch7.addConstraint(Sketcher.Constraint("Tangent", 23, 2, 24, 1))
sketch7.addConstraint(Sketcher.Constraint("Tangent", 24, 2, 25, 1))
sketch7.addConstraint(Sketcher.Constraint("Tangent", 25, 2, 26, 1))
sketch7.addConstraint(Sketcher.Constraint("Tangent", 26, 2, 27, 2))
sketch7.addConstraint(Sketcher.Constraint("Tangent", 27, 1, 28, 1))
sketch7.addConstraint(Sketcher.Constraint("Tangent", 28, 2, 29, 1))
sketch7.addConstraint(Sketcher.Constraint("Tangent", 29, 2, 30, 1))
sketch7.addConstraint(Sketcher.Constraint("Tangent", 30, 2, 31, 1))
sketch7.addConstraint(Sketcher.Constraint("Tangent", 31, 2, 16, 1))
sketch7.addConstraint(Sketcher.Constraint("Horizontal", 0))
sketch7.addConstraint(Sketcher.Constraint("Vertical", 2))
sketch7.addConstraint(Sketcher.Constraint("Horizontal", 6))
sketch7.addConstraint(Sketcher.Constraint("Vertical", 10))
sketch7.addConstraint(Sketcher.Constraint("Horizontal", 12))
sketch7.addConstraint(Sketcher.Constraint("Vertical", 14))
sketch7.addConstraint(Sketcher.Constraint("Vertical", 18))
sketch7.addConstraint(Sketcher.Constraint("Horizontal", 20))
sketch7.addConstraint(Sketcher.Constraint("Vertical", 22))
sketch7.addConstraint(Sketcher.Constraint("Horizontal", 24))
sketch7.addConstraint(Sketcher.Constraint("Vertical", 26))
sketch7.addConstraint(Sketcher.Constraint("Horizontal", 30))
sketch7.addConstraint(Sketcher.Constraint("Coincident", 17, 3, 3, 3))
sketch7.addConstraint(Sketcher.Constraint("Coincident", 19, 3, 1, 3))
sketch7.addConstraint(Sketcher.Constraint("Coincident", 21, 3, 15, 3))
sketch7.addConstraint(Sketcher.Constraint("Coincident", 23, 3, 13, 3))
sketch7.addConstraint(Sketcher.Constraint("Coincident", 25, 3, 11, 3))
sketch7.addConstraint(Sketcher.Constraint("Coincident", 27, 3, 9, 3))
sketch7.addConstraint(Sketcher.Constraint("Coincident", 29, 3, 7, 3))
sketch7.addConstraint(Sketcher.Constraint("Coincident", 31, 3, 5, 3))
sketch7.addConstraint(Sketcher.Constraint("Equal", 3, 5))
sketch7.addConstraint(Sketcher.Constraint("Equal", 5, 7))
sketch7.addConstraint(Sketcher.Constraint("Equal", 1, 9))
sketch7.addConstraint(Sketcher.Constraint("Equal", 9, 11))
sketch7.addConstraint(Sketcher.Constraint("Equal", 11, 13))
sketch7.addConstraint(Sketcher.Constraint("Equal", 13, 15))
sketch7.addConstraint(Sketcher.Constraint("Equal", 17, 29))
sketch7.addConstraint(Sketcher.Constraint("PointOnObject", 23, 2, -1))
sketch7.addConstraint(Sketcher.Constraint("PointOnObject", 29, 2, -1))
sketch7.addConstraint(Sketcher.Constraint("Perpendicular", 4, 8))
sketch7.addConstraint(Sketcher.Constraint("Horizontal", 4, 2, 7, 1))
sketch7.addConstraint(Sketcher.Constraint("Radius", 3, 1.6))
sketch7.addConstraint(Sketcher.Constraint("Radius", 17, 1.4))
sketch7.addConstraint(Sketcher.Constraint("DistanceX", 9, 3, -1, 1, 1.0))
sketch7.addConstraint(Sketcher.Constraint("Radius", 1, 0.375))
sketch7.addConstraint(Sketcher.Constraint("DistanceX", 0, 1, 0, 2, 12.65))
sketch7.addConstraint(Sketcher.Constraint("DistanceX", 12, 2, 12, 1, 4.35))
sketch7.addConstraint(Sketcher.Constraint("DistanceY", 14, 1, 14, 2, 2.35))
sketch7.addConstraint(Sketcher.Constraint("DistanceY", 10, 2, 10, 1, 0.56967))
sketch7.addConstraint(Sketcher.Constraint("Distance", 4, 1.406641))
pad5 = body.newObject("PartDesign::Pad", "Pad004")
pad5.Profile = sketch7
pad5.Length = 5.4
pad5.Reversed = True

doc.recompute()
